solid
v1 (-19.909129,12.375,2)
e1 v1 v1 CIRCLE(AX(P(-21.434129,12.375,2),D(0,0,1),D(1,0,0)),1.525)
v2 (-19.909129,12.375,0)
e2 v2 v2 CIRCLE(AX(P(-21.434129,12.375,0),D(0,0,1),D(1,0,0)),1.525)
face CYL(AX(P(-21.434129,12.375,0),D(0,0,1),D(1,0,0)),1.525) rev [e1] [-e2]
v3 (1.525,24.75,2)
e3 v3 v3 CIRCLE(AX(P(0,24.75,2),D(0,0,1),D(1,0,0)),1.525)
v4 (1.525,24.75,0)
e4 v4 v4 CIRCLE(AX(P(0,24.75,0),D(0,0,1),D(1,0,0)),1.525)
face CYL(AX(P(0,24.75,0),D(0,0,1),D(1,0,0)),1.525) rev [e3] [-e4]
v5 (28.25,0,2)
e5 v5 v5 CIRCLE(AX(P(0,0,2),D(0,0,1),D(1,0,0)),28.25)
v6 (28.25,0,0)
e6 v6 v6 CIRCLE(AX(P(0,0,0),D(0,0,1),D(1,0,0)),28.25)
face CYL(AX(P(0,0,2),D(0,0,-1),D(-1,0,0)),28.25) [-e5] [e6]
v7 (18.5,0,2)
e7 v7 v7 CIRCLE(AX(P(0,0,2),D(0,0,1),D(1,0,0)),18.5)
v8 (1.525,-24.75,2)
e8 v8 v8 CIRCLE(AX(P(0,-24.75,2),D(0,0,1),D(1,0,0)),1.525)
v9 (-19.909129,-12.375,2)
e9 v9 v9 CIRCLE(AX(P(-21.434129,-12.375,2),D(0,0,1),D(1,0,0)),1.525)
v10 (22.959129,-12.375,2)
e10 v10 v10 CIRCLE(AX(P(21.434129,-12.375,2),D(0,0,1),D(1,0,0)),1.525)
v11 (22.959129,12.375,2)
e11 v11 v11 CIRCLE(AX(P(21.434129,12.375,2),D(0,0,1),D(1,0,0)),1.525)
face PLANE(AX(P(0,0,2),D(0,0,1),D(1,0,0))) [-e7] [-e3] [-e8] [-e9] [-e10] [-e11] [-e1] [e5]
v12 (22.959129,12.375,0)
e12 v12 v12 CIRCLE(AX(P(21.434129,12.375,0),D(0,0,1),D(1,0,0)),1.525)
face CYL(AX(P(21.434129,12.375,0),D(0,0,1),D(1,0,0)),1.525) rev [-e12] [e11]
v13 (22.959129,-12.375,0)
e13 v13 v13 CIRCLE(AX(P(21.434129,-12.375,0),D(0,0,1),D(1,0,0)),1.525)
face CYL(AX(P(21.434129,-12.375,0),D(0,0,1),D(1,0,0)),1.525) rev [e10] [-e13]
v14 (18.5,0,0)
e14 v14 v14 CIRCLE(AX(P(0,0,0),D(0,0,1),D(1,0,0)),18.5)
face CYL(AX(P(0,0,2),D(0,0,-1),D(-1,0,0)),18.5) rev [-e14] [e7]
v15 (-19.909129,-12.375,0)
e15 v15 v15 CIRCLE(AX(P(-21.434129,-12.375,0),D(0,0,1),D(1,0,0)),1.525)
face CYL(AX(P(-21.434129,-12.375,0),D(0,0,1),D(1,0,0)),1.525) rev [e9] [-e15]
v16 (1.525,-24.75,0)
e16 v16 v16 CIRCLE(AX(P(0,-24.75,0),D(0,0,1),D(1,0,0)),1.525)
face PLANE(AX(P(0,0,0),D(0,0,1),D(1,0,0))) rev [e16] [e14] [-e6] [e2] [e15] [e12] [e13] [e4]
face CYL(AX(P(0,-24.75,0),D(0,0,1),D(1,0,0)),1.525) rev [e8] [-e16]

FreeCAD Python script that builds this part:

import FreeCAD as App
import Part
import Sketcher

doc = App.newDocument("Part")
body = doc.addObject("PartDesign::Body", "Body")

# Sketch on XY plane
sketch1 = body.newObject("Sketcher::SketchObject", "Sketch")
sketch1.AttachmentSupport = (doc.getObject("XY_Plane"), [""])
sketch1.MapMode = "FlatFace"
sketch1.addGeometry(Part.Circle(App.Vector(0, 0, 0), App.Vector(0, 0, 1), 28.25), False)
sketch1.addGeometry(Part.Circle(App.Vector(0, 0, 0), App.Vector(0, 0, 1), 18.5), False)
sketch1.addConstraint(Sketcher.Constraint("Coincident", 0, 3, -1, 1))
sketch1.addConstraint(Sketcher.Constraint("Coincident", 1, 3, -1, 1))
sketch1.addConstraint(Sketcher.Constraint("Diameter", 1, 37.0))
sketch1.addConstraint(Sketcher.Constraint("Diameter", 0, 56.5))
pad1 = body.newObject("PartDesign::Pad", "Pad")
pad1.Profile = sketch1
pad1.Length = 2

# Sketch on XY plane
sketch2 = body.newObject("Sketcher::SketchObject", "Sketch001")
sketch2.AttachmentSupport = (doc.getObject("XY_Plane"), [""])
sketch2.MapMode = "FlatFace"
sketch2.AttachmentOffset = App.Placement(App.Vector(0, 0, 2), App.Rotation())
sketch2.addGeometry(Part.Circle(App.Vector(0, 24.75, 0), App.Vector(0, 0, 1), 1.525), False)
sketch2.addGeometry(Part.Circle(App.Vector(21.434129, 12.375, 0), App.Vector(0, 0, 1), 1.525), False)
sketch2.addGeometry(Part.Circle(App.Vector(21.434129, -12.375, 0), App.Vector(0, 0, 1), 1.525), False)
sketch2.addGeometry(Part.Circle(App.Vector(0, -24.75, 0), App.Vector(0, 0, 1), 1.525), False)
sketch2.addGeometry(Part.Circle(App.Vector(-21.434129, -12.375, 0), App.Vector(0, 0, 1), 1.525), False)
sketch2.addGeometry(Part.Circle(App.Vector(-21.434129, 12.375, 0), App.Vector(0, 0, 1), 1.525), False)
sketch2.addConstraint(Sketcher.Constraint("Equal", 0, 1))
sketch2.addConstraint(Sketcher.Constraint("Equal", 1, 2))
sketch2.addConstraint(Sketcher.Constraint("Equal", 2, 3))
sketch2.addConstraint(Sketcher.Constraint("Equal", 3, 4))
sketch2.addConstraint(Sketcher.Constraint("Equal", 4, 5))
sketch2.addConstraint(Sketcher.Constraint("Symmetric", 0, 3, 3, 3, -1, 1))
sketch2.addConstraint(Sketcher.Constraint("Symmetric", 1, 3, 4, 3, -1, 1))
sketch2.addConstraint(Sketcher.Constraint("Symmetric", 2, 3, 5, 3, -1, 1))
sketch2.addConstraint(Sketcher.Constraint("Symmetric", 2, 3, 4, 3, -2))
sketch2.addConstraint(Sketcher.Constraint("PointOnObject", 0, 3, -2))
sketch2.addConstraint(Sketcher.Constraint("Diameter", 0, 3.05))
sketch2.addConstraint(Sketcher.Constraint("DistanceY", 3, 3, 0, 3, 49.5))
sketch2.addConstraint(Sketcher.Constraint("DistanceY", 2, 3, 1, 3, 24.75))
sketch2.addConstraint(Sketcher.Constraint("DistanceX", -1, 1, 1, 3, 21.434129))
pocket1 = body.newObject("PartDesign::Pocket", "Pocket")
pocket1.Profile = sketch2
pocket1.Length = 2

doc.recompute()
